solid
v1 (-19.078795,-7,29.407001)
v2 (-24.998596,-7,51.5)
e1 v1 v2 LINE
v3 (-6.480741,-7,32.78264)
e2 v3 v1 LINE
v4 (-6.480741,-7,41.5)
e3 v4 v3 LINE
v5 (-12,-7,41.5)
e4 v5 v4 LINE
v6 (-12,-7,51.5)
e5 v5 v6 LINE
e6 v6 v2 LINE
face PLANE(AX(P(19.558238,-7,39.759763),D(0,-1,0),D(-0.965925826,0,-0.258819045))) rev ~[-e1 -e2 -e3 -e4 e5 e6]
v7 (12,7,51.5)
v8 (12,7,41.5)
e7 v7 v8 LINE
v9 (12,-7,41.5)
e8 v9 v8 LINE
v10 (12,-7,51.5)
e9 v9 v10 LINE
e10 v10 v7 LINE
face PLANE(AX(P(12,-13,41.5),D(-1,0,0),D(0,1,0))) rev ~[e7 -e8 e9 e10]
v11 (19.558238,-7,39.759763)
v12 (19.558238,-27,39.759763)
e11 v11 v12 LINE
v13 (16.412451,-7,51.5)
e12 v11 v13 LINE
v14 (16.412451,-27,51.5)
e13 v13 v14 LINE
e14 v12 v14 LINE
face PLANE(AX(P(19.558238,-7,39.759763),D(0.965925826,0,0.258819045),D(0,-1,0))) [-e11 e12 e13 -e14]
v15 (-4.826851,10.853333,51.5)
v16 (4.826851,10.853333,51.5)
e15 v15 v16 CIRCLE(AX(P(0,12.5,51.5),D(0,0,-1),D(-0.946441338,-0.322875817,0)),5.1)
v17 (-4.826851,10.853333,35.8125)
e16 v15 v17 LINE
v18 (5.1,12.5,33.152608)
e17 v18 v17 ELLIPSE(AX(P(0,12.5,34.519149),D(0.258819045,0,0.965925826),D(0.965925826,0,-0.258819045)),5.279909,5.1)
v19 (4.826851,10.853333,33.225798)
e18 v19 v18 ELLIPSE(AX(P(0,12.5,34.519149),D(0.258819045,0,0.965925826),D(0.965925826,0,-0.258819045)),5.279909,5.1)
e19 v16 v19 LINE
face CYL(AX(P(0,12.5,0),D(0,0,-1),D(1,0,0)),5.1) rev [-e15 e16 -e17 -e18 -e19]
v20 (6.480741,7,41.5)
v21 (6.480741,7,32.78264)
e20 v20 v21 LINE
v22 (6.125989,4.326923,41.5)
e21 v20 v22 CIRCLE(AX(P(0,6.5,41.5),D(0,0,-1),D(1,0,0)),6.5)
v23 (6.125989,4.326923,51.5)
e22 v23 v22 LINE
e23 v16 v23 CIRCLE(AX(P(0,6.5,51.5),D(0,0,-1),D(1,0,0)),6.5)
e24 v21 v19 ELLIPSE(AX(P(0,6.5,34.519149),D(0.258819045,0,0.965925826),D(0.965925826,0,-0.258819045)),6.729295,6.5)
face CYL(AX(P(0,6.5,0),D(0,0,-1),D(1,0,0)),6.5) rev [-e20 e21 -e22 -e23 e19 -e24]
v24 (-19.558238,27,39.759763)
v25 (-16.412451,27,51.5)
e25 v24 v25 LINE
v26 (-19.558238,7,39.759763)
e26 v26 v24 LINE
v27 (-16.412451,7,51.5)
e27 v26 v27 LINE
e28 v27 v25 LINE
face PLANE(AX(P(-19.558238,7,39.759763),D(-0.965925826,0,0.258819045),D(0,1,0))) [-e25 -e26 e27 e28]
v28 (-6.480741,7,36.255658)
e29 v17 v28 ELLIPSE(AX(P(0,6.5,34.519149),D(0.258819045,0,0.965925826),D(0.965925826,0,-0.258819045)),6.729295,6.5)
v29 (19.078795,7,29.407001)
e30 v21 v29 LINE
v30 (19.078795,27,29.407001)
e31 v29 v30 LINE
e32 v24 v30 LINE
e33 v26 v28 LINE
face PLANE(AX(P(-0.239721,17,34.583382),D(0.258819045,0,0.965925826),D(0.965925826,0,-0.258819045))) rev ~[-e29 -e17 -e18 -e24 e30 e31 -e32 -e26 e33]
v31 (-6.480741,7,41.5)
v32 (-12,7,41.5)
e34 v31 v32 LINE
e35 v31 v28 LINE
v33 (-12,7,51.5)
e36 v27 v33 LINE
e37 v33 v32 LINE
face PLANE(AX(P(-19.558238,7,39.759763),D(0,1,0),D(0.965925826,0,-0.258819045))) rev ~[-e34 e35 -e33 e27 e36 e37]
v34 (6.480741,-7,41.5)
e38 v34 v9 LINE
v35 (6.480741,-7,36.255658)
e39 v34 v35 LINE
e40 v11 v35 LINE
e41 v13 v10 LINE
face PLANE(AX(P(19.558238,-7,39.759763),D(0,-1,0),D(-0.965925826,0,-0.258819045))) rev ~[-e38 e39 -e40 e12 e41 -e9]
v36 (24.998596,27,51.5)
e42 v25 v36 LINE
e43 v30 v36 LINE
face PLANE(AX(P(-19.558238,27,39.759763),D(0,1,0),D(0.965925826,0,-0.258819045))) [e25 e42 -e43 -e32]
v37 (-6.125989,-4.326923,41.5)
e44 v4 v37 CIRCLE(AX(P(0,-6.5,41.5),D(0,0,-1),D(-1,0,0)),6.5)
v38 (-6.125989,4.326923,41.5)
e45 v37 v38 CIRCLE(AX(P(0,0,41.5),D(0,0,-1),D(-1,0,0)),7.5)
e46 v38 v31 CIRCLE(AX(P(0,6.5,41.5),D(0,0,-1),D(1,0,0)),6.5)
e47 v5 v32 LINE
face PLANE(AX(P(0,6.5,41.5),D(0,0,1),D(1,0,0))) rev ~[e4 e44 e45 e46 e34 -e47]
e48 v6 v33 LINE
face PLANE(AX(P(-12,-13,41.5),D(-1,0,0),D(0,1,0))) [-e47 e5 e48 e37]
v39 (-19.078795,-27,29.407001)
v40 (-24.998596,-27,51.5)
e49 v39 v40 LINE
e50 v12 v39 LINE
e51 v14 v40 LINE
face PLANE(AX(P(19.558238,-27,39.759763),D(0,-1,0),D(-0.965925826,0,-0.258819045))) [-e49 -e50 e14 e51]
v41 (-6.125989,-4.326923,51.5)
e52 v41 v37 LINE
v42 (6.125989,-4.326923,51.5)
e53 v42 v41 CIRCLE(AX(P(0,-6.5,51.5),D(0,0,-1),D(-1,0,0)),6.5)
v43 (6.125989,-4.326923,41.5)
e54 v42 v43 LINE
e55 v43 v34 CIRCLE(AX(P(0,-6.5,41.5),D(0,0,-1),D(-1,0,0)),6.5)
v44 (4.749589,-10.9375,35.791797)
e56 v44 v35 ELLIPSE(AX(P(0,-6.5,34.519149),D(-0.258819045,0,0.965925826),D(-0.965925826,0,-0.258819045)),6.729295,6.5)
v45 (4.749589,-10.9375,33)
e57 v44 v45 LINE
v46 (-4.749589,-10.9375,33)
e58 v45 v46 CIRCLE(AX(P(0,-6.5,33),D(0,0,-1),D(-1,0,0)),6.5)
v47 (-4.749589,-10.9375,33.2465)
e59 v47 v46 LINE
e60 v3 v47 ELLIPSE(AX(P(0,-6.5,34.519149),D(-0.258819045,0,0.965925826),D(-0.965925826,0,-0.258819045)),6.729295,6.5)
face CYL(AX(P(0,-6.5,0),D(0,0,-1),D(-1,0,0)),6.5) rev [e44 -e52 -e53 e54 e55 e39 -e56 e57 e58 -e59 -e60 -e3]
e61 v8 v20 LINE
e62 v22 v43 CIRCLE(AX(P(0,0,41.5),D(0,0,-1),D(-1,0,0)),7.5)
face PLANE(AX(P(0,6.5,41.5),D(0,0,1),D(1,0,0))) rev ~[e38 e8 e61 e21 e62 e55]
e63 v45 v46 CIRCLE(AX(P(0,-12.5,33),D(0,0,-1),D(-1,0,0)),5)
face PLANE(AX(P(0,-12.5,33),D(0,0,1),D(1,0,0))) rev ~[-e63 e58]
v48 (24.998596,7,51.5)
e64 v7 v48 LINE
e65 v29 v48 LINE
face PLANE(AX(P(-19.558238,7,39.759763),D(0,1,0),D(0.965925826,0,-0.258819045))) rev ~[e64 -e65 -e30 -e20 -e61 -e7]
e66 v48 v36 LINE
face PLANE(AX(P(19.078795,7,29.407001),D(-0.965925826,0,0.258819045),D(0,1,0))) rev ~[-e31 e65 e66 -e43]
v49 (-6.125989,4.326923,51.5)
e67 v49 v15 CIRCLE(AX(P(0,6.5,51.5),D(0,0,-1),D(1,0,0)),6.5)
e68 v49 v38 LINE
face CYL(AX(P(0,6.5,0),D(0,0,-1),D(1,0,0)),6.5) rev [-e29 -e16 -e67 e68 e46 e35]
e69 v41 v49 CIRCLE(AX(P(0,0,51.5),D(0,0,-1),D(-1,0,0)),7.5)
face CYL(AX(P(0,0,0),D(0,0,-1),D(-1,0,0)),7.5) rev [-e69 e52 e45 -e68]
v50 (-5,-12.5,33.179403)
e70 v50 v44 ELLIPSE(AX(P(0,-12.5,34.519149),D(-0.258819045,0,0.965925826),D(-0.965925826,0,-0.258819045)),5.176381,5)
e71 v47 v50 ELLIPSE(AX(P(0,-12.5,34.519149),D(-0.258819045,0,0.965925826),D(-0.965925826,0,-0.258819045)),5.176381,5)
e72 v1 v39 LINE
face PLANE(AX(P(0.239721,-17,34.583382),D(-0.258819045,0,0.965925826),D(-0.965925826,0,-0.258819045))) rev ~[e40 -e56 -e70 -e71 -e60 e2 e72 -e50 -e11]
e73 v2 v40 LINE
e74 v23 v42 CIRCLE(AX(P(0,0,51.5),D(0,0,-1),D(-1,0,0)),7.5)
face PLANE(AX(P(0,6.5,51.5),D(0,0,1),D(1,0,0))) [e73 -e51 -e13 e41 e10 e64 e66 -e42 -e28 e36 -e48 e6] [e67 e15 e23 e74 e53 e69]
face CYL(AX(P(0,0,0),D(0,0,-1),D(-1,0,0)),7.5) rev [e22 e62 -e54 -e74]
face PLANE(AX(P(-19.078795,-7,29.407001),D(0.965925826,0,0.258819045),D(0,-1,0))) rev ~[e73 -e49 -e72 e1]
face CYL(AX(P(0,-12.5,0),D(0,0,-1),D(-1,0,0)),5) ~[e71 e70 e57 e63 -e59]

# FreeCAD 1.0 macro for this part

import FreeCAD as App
import Part
import Sketcher

doc = App.newDocument("Part")
params = doc.addObject("Spreadsheet::Sheet", "Params")
for row, (alias, value) in enumerate([
    ("sketch1_diameter", "10.2 mm"),
    ("pad1_length", "50 mm"),
    ("sketch2_diameter", "15 mm"),
    ("pad2_length", "70 mm"),
    ("sketch3_diameter", "13 mm"),
    ("pad3_length", "70 mm"),
    ("sketch4_diameter", "15 mm"),
    ("pad4_length", "70 mm"),
    ("sketch5_diameter", "13 mm"),
    ("pad5_length", "70 mm"),
    ("sketch6_diameter", "10.2 mm"),
    ("pad6_length", "70 mm"),
    ("sketch7_width", "57 mm"),
    ("sketch7_height", "59 mm"),
    ("pad7_length", "20 mm"),
    ("sketch8_diameter", "12.7 mm"),
    ("pad8_length", "50 mm"),
    ("sketch9_width", "40 mm"),
    ("sketch9_height", "20 mm"),
    ("pad9_length", "30 mm"),
    ("sketch10_diameter", "10 mm"),
    ("pad10_length", "50 mm"),
    ("sketch11_diameter", "12.7 mm"),
    ("pad11_length", "50 mm"),
    ("sketch12_width", "40 mm"),
    ("sketch12_height", "20 mm"),
    ("pad12_length", "30 mm"),
    ("sketch13_diameter", "10 mm"),
    ("pad13_length", "50 mm"),
    ("sketch14_width", "24 mm"),
    ("sketch14_height", "39 mm"),
    ("pad14_length", "10 mm"),
], start=1):
    params.set(f"A{row}", alias)
    params.set(f"B{row}", "=" + value)
    params.setAlias(f"B{row}", alias)

body = doc.addObject("PartDesign::Body", "Body")

# Sketch on XY plane
sketch1 = body.newObject("Sketcher::SketchObject", "Sketch")
sketch1.AttachmentSupport = (doc.getObject("XY_Plane"), [""])
sketch1.MapMode = "FlatFace"
sketch1.AttachmentOffset = App.Placement(App.Vector(0, 0, -17), App.Rotation())
sketch1.addGeometry(Part.Circle(App.Vector(0, -12, 0), App.Vector(0, 0, 1), 5), False)
sketch1.addConstraint([
    Sketcher.Constraint("PointOnObject", 0, 3, -2),
    Sketcher.Constraint("Diameter", 0, 10.2),
    Sketcher.Constraint("DistanceY", 0, 3, -1, 1, 12.5),
])
sketch1.setExpression("Constraints[1]", "Params.sketch1_diameter")
pad1 = body.newObject("PartDesign::Pad", "Pad")
pad1.Profile = sketch1
pad1.setExpression("Length", "Params.pad1_length")
body2 = doc.addObject("PartDesign::Body", "Body001")

# Sketch on XY plane
sketch2 = body2.newObject("Sketcher::SketchObject", "Sketch001")
sketch2.AttachmentSupport = (doc.getObject("XY_Plane001"), [""])
sketch2.MapMode = "FlatFace"
sketch2.addGeometry(Part.Circle(App.Vector(0, 0, 0), App.Vector(0, 0, 1), 8), False)
sketch2.addConstraint([
    Sketcher.Constraint("Coincident", 0, 3, -1, 1),
    Sketcher.Constraint("Diameter", 0, 15.0),
])
sketch2.setExpression("Constraints[1]", "Params.sketch2_diameter")
pad2 = body2.newObject("PartDesign::Pad", "Pad001")
pad2.Profile = sketch2
pad2.setExpression("Length", "Params.pad2_length")
body3 = doc.addObject("PartDesign::Body", "Body002")

# Sketch on XY plane
sketch3 = body3.newObject("Sketcher::SketchObject", "Sketch002")
sketch3.AttachmentSupport = (doc.getObject("XY_Plane002"), [""])
sketch3.MapMode = "FlatFace"
sketch3.addGeometry(Part.Circle(App.Vector(0, 6, 0), App.Vector(0, 0, 1), 6), False)
sketch3.addConstraint([
    Sketcher.Constraint("PointOnObject", 0, 3, -2),
    Sketcher.Constraint("Diameter", 0, 13.0),
    Sketcher.Constraint("DistanceY", -1, 1, 0, 3, 6.5),
])
sketch3.setExpression("Constraints[1]", "Params.sketch3_diameter")
pad3 = body3.newObject("PartDesign::Pad", "Pad002")
pad3.Profile = sketch3
pad3.setExpression("Length", "Params.pad3_length")
doc.recompute()

boolean = body3.newObject("PartDesign::Boolean", "Boolean")
boolean.Type = "Fuse"
boolean.addObjects([body2])
body4 = doc.addObject("PartDesign::Body", "Body003")

# Sketch on XY plane
sketch4 = body4.newObject("Sketcher::SketchObject", "Sketch003")
sketch4.AttachmentSupport = (doc.getObject("XY_Plane003"), [""])
sketch4.MapMode = "FlatFace"
sketch4.addGeometry(Part.Circle(App.Vector(0, 0, 0), App.Vector(0, 0, 1), 8), False)
sketch4.addConstraint([
    Sketcher.Constraint("Coincident", 0, 3, -1, 1),
    Sketcher.Constraint("Diameter", 0, 15.0),
])
sketch4.setExpression("Constraints[1]", "Params.sketch4_diameter")
pad4 = body4.newObject("PartDesign::Pad", "Pad003")
pad4.Profile = sketch4
pad4.setExpression("Length", "Params.pad4_length")
body5 = doc.addObject("PartDesign::Body", "Body004")

# Sketch on XY plane
sketch5 = body5.newObject("Sketcher::SketchObject", "Sketch004")
sketch5.AttachmentSupport = (doc.getObject("XY_Plane004"), [""])
sketch5.MapMode = "FlatFace"
sketch5.addGeometry(Part.Circle(App.Vector(0, 6, 0), App.Vector(0, 0, 1), 6), False)
sketch5.addConstraint([
    Sketcher.Constraint("PointOnObject", 0, 3, -2),
    Sketcher.Constraint("Diameter", 0, 13.0),
    Sketcher.Constraint("DistanceY", -1, 1, 0, 3, 6.5),
])
sketch5.setExpression("Constraints[1]", "Params.sketch5_diameter")
pad5 = body5.newObject("PartDesign::Pad", "Pad004")
pad5.Profile = sketch5
pad5.setExpression("Length", "Params.pad5_length")
doc.recompute()

boolean2 = body5.newObject("PartDesign::Boolean", "Boolean001")
boolean2.Type = "Fuse"
boolean2.addObjects([body4])
body6 = doc.addObject("PartDesign::Body", "Body005")
doc.recompute()

body5.Placement = App.Placement(App.Vector(0, 0, 0), App.Rotation(App.Vector(0, 0, 1), 180))
boolean3 = body6.newObject("PartDesign::Boolean", "Boolean002")
boolean3.Type = "Fuse"
boolean3.addObjects([body5])
doc.recompute()

boolean4 = body6.newObject("PartDesign::Boolean", "Boolean003")
boolean4.Type = "Fuse"
boolean4.addObjects([body3])
body7 = doc.addObject("PartDesign::Body", "Body006")

# Sketch on XY plane
sketch6 = body7.newObject("Sketcher::SketchObject", "Sketch005")
sketch6.AttachmentSupport = (doc.getObject("XY_Plane006"), [""])
sketch6.MapMode = "FlatFace"
sketch6.addGeometry(Part.Circle(App.Vector(0, 12, 0), App.Vector(0, 0, 1), 5), False)
sketch6.addConstraint([
    Sketcher.Constraint("PointOnObject", 0, 3, -2),
    Sketcher.Constraint("Diameter", 0, 10.2),
    Sketcher.Constraint("DistanceY", -1, 1, 0, 3, 12.5),
])
sketch6.setExpression("Constraints[1]", "Params.sketch6_diameter")
pad6 = body7.newObject("PartDesign::Pad", "Pad005")
pad6.Profile = sketch6
pad6.setExpression("Length", "Params.pad6_length")
body8 = doc.addObject("PartDesign::Body", "Body007")

# Sketch on XY plane
sketch7 = body8.newObject("Sketcher::SketchObject", "Sketch006")
sketch7.AttachmentSupport = (doc.getObject("XY_Plane007"), [""])
sketch7.MapMode = "FlatFace"
sketch7.AttachmentOffset = App.Placement(App.Vector(0, 0, 51.5), App.Rotation())
sketch7.addGeometry([
    Part.LineSegment(App.Vector(-30, 30, 0), App.Vector(-30, -29, 0)),
    Part.LineSegment(App.Vector(-30, -29, 0), App.Vector(28, -29, 0)),
    Part.LineSegment(App.Vector(28, -29, 0), App.Vector(28, 30, 0)),
    Part.LineSegment(App.Vector(28, 30, 0), App.Vector(-30, 30, 0)),
], False)
sketch7.addConstraint([
    Sketcher.Constraint("Coincident", 0, 2, 1, 1),
    Sketcher.Constraint("Coincident", 1, 2, 2, 1),
    Sketcher.Constraint("Coincident", 2, 2, 3, 1),
    Sketcher.Constraint("Coincident", 3, 2, 0, 1),
    Sketcher.Constraint("Vertical", 0),
    Sketcher.Constraint("Horizontal", 1),
    Sketcher.Constraint("Vertical", 2),
    Sketcher.Constraint("Horizontal", 3),
    Sketcher.Constraint("DistanceX", 1, 1, 1, 2, 57.0),
    Sketcher.Constraint("DistanceY", 0, 2, 0, 1, 59.0),
    Sketcher.Constraint("DistanceY", 0, 2, -1, 1, 29.0),
    Sketcher.Constraint("DistanceX", 0, 2, -1, 1, 29.5),
])
sketch7.setExpression("Constraints[8]", "Params.sketch7_width")
sketch7.setExpression("Constraints[9]", "Params.sketch7_height")
pad7 = body8.newObject("PartDesign::Pad", "Pad006")
pad7.Profile = sketch7
pad7.setExpression("Length", "Params.pad7_length")
body9 = doc.addObject("PartDesign::Body", "Body008")

# Sketch on XY plane
sketch8 = body9.newObject("Sketcher::SketchObject", "Sketch007")
sketch8.AttachmentSupport = (doc.getObject("XY_Plane008"), [""])
sketch8.MapMode = "FlatFace"
sketch8.addGeometry(Part.Circle(App.Vector(0, 0, 0), App.Vector(0, 0, 1), 6), False)
sketch8.addConstraint([
    Sketcher.Constraint("Coincident", 0, 3, -1, 1),
    Sketcher.Constraint("Diameter", 0, 12.7),
])
sketch8.setExpression("Constraints[1]", "Params.sketch8_diameter")
pad8 = body9.newObject("PartDesign::Pad", "Pad007")
pad8.Profile = sketch8
pad8.setExpression("Length", "Params.pad8_length")
body10 = doc.addObject("PartDesign::Body", "Body009")

# Sketch on XY plane
sketch9 = body10.newObject("Sketcher::SketchObject", "Sketch008")
sketch9.AttachmentSupport = (doc.getObject("XY_Plane009"), [""])
sketch9.MapMode = "FlatFace"
sketch9.addGeometry([
    Part.LineSegment(App.Vector(0, 20, 0), App.Vector(0, 0, 0)),
    Part.LineSegment(App.Vector(0, 0, 0), App.Vector(40, 0, 0)),
    Part.LineSegment(App.Vector(40, 0, 0), App.Vector(40, 20, 0)),
    Part.LineSegment(App.Vector(40, 20, 0), App.Vector(0, 20, 0)),
], False)
sketch9.addConstraint([
    Sketcher.Constraint("Coincident", 0, 2, 1, 1),
    Sketcher.Constraint("Coincident", 1, 2, 2, 1),
    Sketcher.Constraint("Coincident", 2, 2, 3, 1),
    Sketcher.Constraint("Coincident", 3, 2, 0, 1),
    Sketcher.Constraint("Vertical", 0),
    Sketcher.Constraint("Horizontal", 1),
    Sketcher.Constraint("Vertical", 2),
    Sketcher.Constraint("Horizontal", 3),
    Sketcher.Constraint("Coincident", 0, 2, -1, 1),
    Sketcher.Constraint("DistanceX", 1, 1, 1, 2, 40.0),
    Sketcher.Constraint("DistanceY", 0, 2, 0, 1, 20.0),
])
sketch9.setExpression("Constraints[9]", "Params.sketch9_width")
sketch9.setExpression("Constraints[10]", "Params.sketch9_height")
pad9 = body10.newObject("PartDesign::Pad", "Pad008")
pad9.Profile = sketch9
pad9.setExpression("Length", "Params.pad9_length")
body11 = doc.addObject("PartDesign::Body", "Body010")
doc.recompute()

body10.Placement = App.Placement(App.Vector(-19.558238, 7, 39.759763), App.Rotation(App.Vector(0, 1, 0), 15))
boolean5 = body11.newObject("PartDesign::Boolean", "Boolean004")
boolean5.Type = "Fuse"
boolean5.addObjects([body10])
body12 = doc.addObject("PartDesign::Body", "Body011")
body12.AllowCompound = True

# Sketch on XY plane
sketch10 = body12.newObject("Sketcher::SketchObject", "Sketch009")
sketch10.AttachmentSupport = (doc.getObject("XY_Plane011"), [""])
sketch10.MapMode = "FlatFace"
sketch10.addGeometry(Part.Circle(App.Vector(0, 12, 0), App.Vector(0, 0, 1), 5), False)
sketch10.addConstraint([
    Sketcher.Constraint("PointOnObject", 0, 3, -2),
    Sketcher.Constraint("Diameter", 0, 10.0),
    Sketcher.Constraint("DistanceY", -1, 1, 0, 3, 12.5),
])
sketch10.setExpression("Constraints[1]", "Params.sketch10_diameter")
pad10 = body12.newObject("PartDesign::Pad", "Pad009")
pad10.Profile = sketch10
pad10.setExpression("Length", "Params.pad10_length")
doc.recompute()

boolean6 = body12.newObject("PartDesign::Boolean", "Boolean005")
boolean6.Type = "Fuse"
boolean6.addObjects([body11])
doc.recompute()

boolean7 = body12.newObject("PartDesign::Boolean", "Boolean006")
boolean7.Type = "Fuse"
boolean7.addObjects([body9])
body13 = doc.addObject("PartDesign::Body", "Body012")

# Sketch on XY plane
sketch11 = body13.newObject("Sketcher::SketchObject", "Sketch010")
sketch11.AttachmentSupport = (doc.getObject("XY_Plane012"), [""])
sketch11.MapMode = "FlatFace"
sketch11.addGeometry(Part.Circle(App.Vector(0, 0, 0), App.Vector(0, 0, 1), 6), False)
sketch11.addConstraint([
    Sketcher.Constraint("Coincident", 0, 3, -1, 1),
    Sketcher.Constraint("Diameter", 0, 12.7),
])
sketch11.setExpression("Constraints[1]", "Params.sketch11_diameter")
pad11 = body13.newObject("PartDesign::Pad", "Pad010")
pad11.Profile = sketch11
pad11.setExpression("Length", "Params.pad11_length")
body14 = doc.addObject("PartDesign::Body", "Body013")

# Sketch on XY plane
sketch12 = body14.newObject("Sketcher::SketchObject", "Sketch011")
sketch12.AttachmentSupport = (doc.getObject("XY_Plane013"), [""])
sketch12.MapMode = "FlatFace"
sketch12.addGeometry([
    Part.LineSegment(App.Vector(0, 20, 0), App.Vector(0, 0, 0)),
    Part.LineSegment(App.Vector(0, 0, 0), App.Vector(40, 0, 0)),
    Part.LineSegment(App.Vector(40, 0, 0), App.Vector(40, 20, 0)),
    Part.LineSegment(App.Vector(40, 20, 0), App.Vector(0, 20, 0)),
], False)
sketch12.addConstraint([
    Sketcher.Constraint("Coincident", 0, 2, 1, 1),
    Sketcher.Constraint("Coincident", 1, 2, 2, 1),
    Sketcher.Constraint("Coincident", 2, 2, 3, 1),
    Sketcher.Constraint("Coincident", 3, 2, 0, 1),
    Sketcher.Constraint("Vertical", 0),
    Sketcher.Constraint("Horizontal", 1),
    Sketcher.Constraint("Vertical", 2),
    Sketcher.Constraint("Horizontal", 3),
    Sketcher.Constraint("Coincident", 0, 2, -1, 1),
    Sketcher.Constraint("DistanceX", 1, 1, 1, 2, 40.0),
    Sketcher.Constraint("DistanceY", 0, 2, 0, 1, 20.0),
])
sketch12.setExpression("Constraints[9]", "Params.sketch12_width")
sketch12.setExpression("Constraints[10]", "Params.sketch12_height")
pad12 = body14.newObject("PartDesign::Pad", "Pad011")
pad12.Profile = sketch12
pad12.setExpression("Length", "Params.pad12_length")
body15 = doc.addObject("PartDesign::Body", "Body014")
doc.recompute()

body14.Placement = App.Placement(App.Vector(-19.558238, 7, 39.759763), App.Rotation(App.Vector(0, 1, 0), 15))
boolean8 = body15.newObject("PartDesign::Boolean", "Boolean007")
boolean8.Type = "Fuse"
boolean8.addObjects([body14])
body16 = doc.addObject("PartDesign::Body", "Body015")
body16.AllowCompound = True

# Sketch on XY plane
sketch13 = body16.newObject("Sketcher::SketchObject", "Sketch012")
sketch13.AttachmentSupport = (doc.getObject("XY_Plane015"), [""])
sketch13.MapMode = "FlatFace"
sketch13.addGeometry(Part.Circle(App.Vector(0, 12, 0), App.Vector(0, 0, 1), 5), False)
sketch13.addConstraint([
    Sketcher.Constraint("PointOnObject", 0, 3, -2),
    Sketcher.Constraint("Diameter", 0, 10.0),
    Sketcher.Constraint("DistanceY", -1, 1, 0, 3, 12.5),
])
sketch13.setExpression("Constraints[1]", "Params.sketch13_diameter")
pad13 = body16.newObject("PartDesign::Pad", "Pad012")
pad13.Profile = sketch13
pad13.setExpression("Length", "Params.pad13_length")
doc.recompute()

boolean9 = body16.newObject("PartDesign::Boolean", "Boolean008")
boolean9.Type = "Fuse"
boolean9.addObjects([body15])
doc.recompute()

boolean10 = body16.newObject("PartDesign::Boolean", "Boolean009")
boolean10.Type = "Fuse"
boolean10.addObjects([body13])
body17 = doc.addObject("PartDesign::Body", "Body016")
body17.AllowCompound = True
doc.recompute()

body16.Placement = App.Placement(App.Vector(0, 0, 0), App.Rotation(App.Vector(0, 0, 1), 180))
boolean11 = body17.newObject("PartDesign::Boolean", "Boolean010")
boolean11.Type = "Fuse"
boolean11.addObjects([body16])
doc.recompute()

boolean12 = body17.newObject("PartDesign::Boolean", "Boolean011")
boolean12.Type = "Fuse"
boolean12.addObjects([body12])
body18 = doc.addObject("PartDesign::Body", "Body017")

# Sketch on XY plane
sketch14 = body18.newObject("Sketcher::SketchObject", "Sketch013")
sketch14.AttachmentSupport = (doc.getObject("XY_Plane017"), [""])
sketch14.MapMode = "FlatFace"
sketch14.AttachmentOffset = App.Placement(App.Vector(0, 0, 41.5), App.Rotation())
sketch14.addGeometry([
    Part.LineSegment(App.Vector(-12, 26, 0), App.Vector(-12, -13, 0)),
    Part.LineSegment(App.Vector(-12, -13, 0), App.Vector(12, -13, 0)),
    Part.LineSegment(App.Vector(12, -13, 0), App.Vector(12, 26, 0)),
    Part.LineSegment(App.Vector(12, 26, 0), App.Vector(-12, 26, 0)),
], False)
sketch14.addConstraint([
    Sketcher.Constraint("Coincident", 0, 2, 1, 1),
    Sketcher.Constraint("Coincident", 1, 2, 2, 1),
    Sketcher.Constraint("Coincident", 2, 2, 3, 1),
    Sketcher.Constraint("Coincident", 3, 2, 0, 1),
    Sketcher.Constraint("Vertical", 0),
    Sketcher.Constraint("Horizontal", 1),
    Sketcher.Constraint("Vertical", 2),
    Sketcher.Constraint("Horizontal", 3),
    Sketcher.Constraint("DistanceX", 1, 1, 1, 2, 24.0),
    Sketcher.Constraint("DistanceY", 0, 2, 0, 1, 39.0),
    Sketcher.Constraint("DistanceX", 0, 2, -1, 1, 12.0),
    Sketcher.Constraint("DistanceY", 0, 2, -1, 1, 13.0),
])
sketch14.setExpression("Constraints[8]", "Params.sketch14_width")
sketch14.setExpression("Constraints[9]", "Params.sketch14_height")
pad14 = body18.newObject("PartDesign::Pad", "Pad013")
pad14.Profile = sketch14
pad14.setExpression("Length", "Params.pad14_length")
doc.recompute()

boolean13 = body18.newObject("PartDesign::Boolean", "Boolean012")
boolean13.Type = "Fuse"
boolean13.addObjects([body17])
doc.recompute()

boolean14 = body18.newObject("PartDesign::Boolean", "Boolean013")
boolean14.Type = "Cut"
boolean14.addObjects([body8])
doc.recompute()

boolean15 = body18.newObject("PartDesign::Boolean", "Boolean014")
boolean15.Type = "Cut"
boolean15.addObjects([body7])
doc.recompute()

boolean16 = body18.newObject("PartDesign::Boolean", "Boolean015")
boolean16.Type = "Cut"
boolean16.addObjects([body6])
doc.recompute()

boolean17 = body18.newObject("PartDesign::Boolean", "Boolean016")
boolean17.Type = "Cut"
boolean17.addObjects([body])

doc.recompute()
